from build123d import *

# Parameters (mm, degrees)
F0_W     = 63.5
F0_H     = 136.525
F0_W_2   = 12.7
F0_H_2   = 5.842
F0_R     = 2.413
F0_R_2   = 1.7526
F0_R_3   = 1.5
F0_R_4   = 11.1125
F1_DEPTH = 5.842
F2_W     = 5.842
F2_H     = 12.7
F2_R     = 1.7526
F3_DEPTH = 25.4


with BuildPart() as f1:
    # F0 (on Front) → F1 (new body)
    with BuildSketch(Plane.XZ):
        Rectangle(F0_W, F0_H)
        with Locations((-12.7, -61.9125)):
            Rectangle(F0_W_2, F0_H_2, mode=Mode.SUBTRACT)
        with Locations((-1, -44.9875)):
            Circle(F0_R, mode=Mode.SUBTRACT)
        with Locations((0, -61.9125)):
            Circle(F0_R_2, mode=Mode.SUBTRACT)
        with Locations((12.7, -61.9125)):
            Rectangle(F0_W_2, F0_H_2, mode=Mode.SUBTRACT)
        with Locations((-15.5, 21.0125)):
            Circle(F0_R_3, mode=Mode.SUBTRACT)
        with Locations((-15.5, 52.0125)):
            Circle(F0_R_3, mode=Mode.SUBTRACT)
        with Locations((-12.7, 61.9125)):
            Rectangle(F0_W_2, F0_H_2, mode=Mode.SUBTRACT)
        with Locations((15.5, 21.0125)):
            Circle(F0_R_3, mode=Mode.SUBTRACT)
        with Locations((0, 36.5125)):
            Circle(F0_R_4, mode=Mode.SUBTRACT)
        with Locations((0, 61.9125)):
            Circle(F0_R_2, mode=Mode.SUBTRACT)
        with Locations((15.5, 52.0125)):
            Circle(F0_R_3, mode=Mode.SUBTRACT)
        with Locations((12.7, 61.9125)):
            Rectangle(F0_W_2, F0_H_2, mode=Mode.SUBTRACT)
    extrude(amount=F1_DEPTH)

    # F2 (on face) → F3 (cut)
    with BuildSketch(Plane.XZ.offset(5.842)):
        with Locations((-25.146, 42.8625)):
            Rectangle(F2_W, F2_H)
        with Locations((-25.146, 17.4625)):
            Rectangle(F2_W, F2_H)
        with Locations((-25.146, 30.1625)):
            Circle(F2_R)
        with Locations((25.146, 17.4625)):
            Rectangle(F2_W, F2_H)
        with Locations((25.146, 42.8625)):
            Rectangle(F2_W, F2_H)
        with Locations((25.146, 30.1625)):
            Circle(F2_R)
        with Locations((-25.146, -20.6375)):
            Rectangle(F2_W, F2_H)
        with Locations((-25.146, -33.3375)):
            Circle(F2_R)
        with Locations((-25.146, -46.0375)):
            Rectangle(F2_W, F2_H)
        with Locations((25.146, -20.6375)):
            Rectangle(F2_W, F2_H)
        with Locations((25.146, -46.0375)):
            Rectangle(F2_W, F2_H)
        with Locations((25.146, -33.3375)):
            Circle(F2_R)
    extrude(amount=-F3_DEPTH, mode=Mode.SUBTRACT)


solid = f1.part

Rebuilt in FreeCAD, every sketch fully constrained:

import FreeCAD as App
import Part
import Sketcher

V = App.Vector
Q = App.Units.Quantity

doc = App.newDocument("Part")
body = doc.addObject("PartDesign::Body", "Body")

# Sketch on XZ plane
sketch1 = body.newObject("Sketcher::SketchObject", "Sketch")
sketch1.AttachmentSupport = (doc.getObject("XZ_Plane"), [""])
sketch1.MapMode = "FlatFace"
sketch1.addGeometry([
    Part.LineSegment(V(-31.8, 68.3, 0), V(-31.8, -68.3, 0)),  # 0
    Part.LineSegment(V(-31.8, -68.3, 0), V(31.8, -68.3, 0)),  # 1
    Part.LineSegment(V(31.8, -68.3, 0), V(31.8, 68.3, 0)),  # 2
    Part.LineSegment(V(31.8, 68.3, 0), V(-31.8, 68.3, 0)),  # 3
    Part.LineSegment(V(-6.3, -64.8, 0), V(-19.1, -64.8, 0)),  # 4
    Part.LineSegment(V(-19.1, -64.8, 0), V(-19.1, -59, 0)),  # 5
    Part.LineSegment(V(-19.1, -59, 0), V(-6.3, -59, 0)),  # 6
    Part.LineSegment(V(-6.3, -59, 0), V(-6.3, -64.8, 0)),  # 7
    Part.Circle(V(-1, -45, 0), V(0, 0, 1), 2.4),  # 8
    Part.Circle(V(0, -61.9, 0), V(0, 0, 1), 1.8),  # 9
    Part.LineSegment(V(19.1, -64.8, 0), V(6.3, -64.8, 0)),  # 10
    Part.LineSegment(V(6.3, -64.8, 0), V(6.3, -59, 0)),  # 11
    Part.LineSegment(V(6.3, -59, 0), V(19.1, -59, 0)),  # 12
    Part.LineSegment(V(19.1, -59, 0), V(19.1, -64.8, 0)),  # 13
    Part.Circle(V(-15.5, 21, 0), V(0, 0, 1), 1.5),  # 14
    Part.Circle(V(-15.5, 52, 0), V(0, 0, 1), 1.5),  # 15
    Part.LineSegment(V(-6.3, 59, 0), V(-19.1, 59, 0)),  # 16
    Part.LineSegment(V(-19.1, 59, 0), V(-19.1, 64.8, 0)),  # 17
    Part.LineSegment(V(-19.1, 64.8, 0), V(-6.3, 64.8, 0)),  # 18
    Part.LineSegment(V(-6.3, 64.8, 0), V(-6.3, 59, 0)),  # 19
    Part.Circle(V(15.5, 21, 0), V(0, 0, 1), 1.5),  # 20
    Part.Circle(V(0, 36.5, 0), V(0, 0, 1), 11.1),  # 21
    Part.Circle(V(0, 61.9, 0), V(0, 0, 1), 1.8),  # 22
    Part.LineSegment(V(19.1, 59, 0), V(6.3, 59, 0)),  # 23
    Part.LineSegment(V(6.3, 59, 0), V(6.3, 64.8, 0)),  # 24
    Part.LineSegment(V(6.3, 64.8, 0), V(19.1, 64.8, 0)),  # 25
    Part.LineSegment(V(19.1, 64.8, 0), V(19.1, 59, 0)),  # 26
    Part.Circle(V(15.5, 52, 0), V(0, 0, 1), 1.5),  # 27
], False)
sketch1.addConstraint([
    Sketcher.Constraint("Coincident", 0, 2, 1, 1),
    Sketcher.Constraint("Coincident", 1, 2, 2, 1),
    Sketcher.Constraint("Coincident", 2, 2, 3, 1),
    Sketcher.Constraint("Coincident", 3, 2, 0, 1),
    Sketcher.Constraint("Coincident", 4, 2, 5, 1),
    Sketcher.Constraint("Coincident", 5, 2, 6, 1),
    Sketcher.Constraint("Coincident", 6, 2, 7, 1),
    Sketcher.Constraint("Coincident", 7, 2, 4, 1),
    Sketcher.Constraint("Coincident", 10, 2, 11, 1),
    Sketcher.Constraint("Coincident", 11, 2, 12, 1),
    Sketcher.Constraint("Coincident", 12, 2, 13, 1),
    Sketcher.Constraint("Coincident", 13, 2, 10, 1),
    Sketcher.Constraint("Coincident", 16, 2, 17, 1),
    Sketcher.Constraint("Coincident", 17, 2, 18, 1),
    Sketcher.Constraint("Coincident", 18, 2, 19, 1),
    Sketcher.Constraint("Coincident", 19, 2, 16, 1),
    Sketcher.Constraint("Coincident", 23, 2, 24, 1),
    Sketcher.Constraint("Coincident", 24, 2, 25, 1),
    Sketcher.Constraint("Coincident", 25, 2, 26, 1),
    Sketcher.Constraint("Coincident", 26, 2, 23, 1),
    Sketcher.Constraint("Vertical", 0),
    Sketcher.Constraint("Horizontal", 1),
    Sketcher.Constraint("Vertical", 2),
    Sketcher.Constraint("Horizontal", 3),
    Sketcher.Constraint("Horizontal", 4),
    Sketcher.Constraint("Vertical", 5),
    Sketcher.Constraint("Horizontal", 6),
    Sketcher.Constraint("Vertical", 7),
    Sketcher.Constraint("Horizontal", 10),
    Sketcher.Constraint("Vertical", 11),
    Sketcher.Constraint("Horizontal", 12),
    Sketcher.Constraint("Vertical", 13),
    Sketcher.Constraint("Horizontal", 16),
    Sketcher.Constraint("Vertical", 17),
    Sketcher.Constraint("Horizontal", 18),
    Sketcher.Constraint("Vertical", 19),
    Sketcher.Constraint("Horizontal", 23),
    Sketcher.Constraint("Vertical", 24),
    Sketcher.Constraint("Horizontal", 25),
    Sketcher.Constraint("Vertical", 26),
    Sketcher.Constraint("Equal", 14, 15),
    Sketcher.Constraint("Equal", 15, 20),
    Sketcher.Constraint("Equal", 9, 22),
    Sketcher.Constraint("Equal", 20, 27),
    Sketcher.Constraint("Symmetric", 9, 3, 22, 3, -1, 1),
    Sketcher.Constraint("Symmetric", 0, 2, 2, 2, -1, 1),
    Sketcher.Constraint("Symmetric", 12, 2, 16, 2, -1, 1),
    Sketcher.Constraint("Symmetric", 10, 2, 18, 2, -1, 1),
    Sketcher.Constraint("Symmetric", 6, 2, 23, 2, -1, 1),
    Sketcher.Constraint("Symmetric", 4, 2, 25, 2, -1, 1),
    Sketcher.Constraint("Symmetric", 14, 3, 20, 3, -2),
    Sketcher.Constraint("Symmetric", 15, 3, 27, 3, -2),
    Sketcher.Constraint("Symmetric", 7, 2, 10, 2, -2),
    Sketcher.Constraint("Symmetric", 5, 2, 12, 2, -2),
    Sketcher.Constraint("PointOnObject", 9, 3, -2),
    Sketcher.Constraint("PointOnObject", 21, 3, -2),
    Sketcher.Constraint("Vertical", 14, 3, 15, 3),
    Sketcher.Constraint("Diameter", 8, Q("0.19 in")),
    Sketcher.Constraint("Diameter", 9, Q("0.138 in")),
    Sketcher.Constraint("Diameter", 21, Q("0.875 in")),
    Sketcher.Constraint("DistanceX", 1, 1, 1, 2, Q("2.5 in")),
    Sketcher.Constraint("DistanceX", 4, 2, 4, 1, Q("0.5 in")),
    Sketcher.Constraint("DistanceY", 21, 3, 22, 3, Q("1 in")),
    Sketcher.Constraint("DistanceX", 4, 2, 1, 2, Q("2 in")),
    Sketcher.Constraint("DistanceY", 5, 1, 5, 2, Q("0.23 in")),
    Sketcher.Constraint("Diameter", 14, 3.0),
    Sketcher.Constraint("DistanceY", 0, 2, 0, 1, Q("5.375 in")),
    Sketcher.Constraint("DistanceY", 0, 2, 9, 3, Q("0.25 in")),
    Sketcher.Constraint("DistanceY", 0, 2, 4, 2, Q("0.135 in")),
    Sketcher.Constraint("DistanceX", 8, 3, -1, 1, 1.0),
    Sketcher.Constraint("DistanceY", 8, 3, -1, 1, 44.9875),
    Sketcher.Constraint("DistanceX", 14, 3, -1, 1, 15.5),
    Sketcher.Constraint("DistanceY", -1, 1, 14, 3, 21.0125),
    Sketcher.Constraint("DistanceY", -1, 1, 15, 3, 52.0125),
])
pad1 = body.newObject("PartDesign::Pad", "Pad")
pad1.Profile = sketch1
pad1.Length = Q("0.23 in")

# Sketch on XZ plane
sketch2 = body.newObject("Sketcher::SketchObject", "Sketch001")
sketch2.AttachmentSupport = (doc.getObject("XZ_Plane"), [""])
sketch2.MapMode = "FlatFace"
sketch2.AttachmentOffset = App.Placement(V(0, 0, 0.23 * 25.4), App.Rotation())
sketch2.addGeometry([
    Part.LineSegment(V(-28.1, 49.2, 0), V(-28.1, 36.5, 0)),  # 0
    Part.LineSegment(V(-28.1, 36.5, 0), V(-22.2, 36.5, 0)),  # 1
    Part.LineSegment(V(-22.2, 36.5, 0), V(-22.2, 49.2, 0)),  # 2
    Part.LineSegment(V(-22.2, 49.2, 0), V(-28.1, 49.2, 0)),  # 3
    Part.LineSegment(V(-28.1, 23.8, 0), V(-28.1, 11.1, 0)),  # 4
    Part.LineSegment(V(-28.1, 11.1, 0), V(-22.2, 11.1, 0)),  # 5
    Part.LineSegment(V(-22.2, 11.1, 0), V(-22.2, 23.8, 0)),  # 6
    Part.LineSegment(V(-22.2, 23.8, 0), V(-28.1, 23.8, 0)),  # 7
    Part.Circle(V(-25.1, 30.2, 0), V(0, 0, 1), 1.8),  # 8
    Part.LineSegment(V(22.2, 23.8, 0), V(22.2, 11.1, 0)),  # 9
    Part.LineSegment(V(22.2, 11.1, 0), V(28.1, 11.1, 0)),  # 10
    Part.LineSegment(V(28.1, 11.1, 0), V(28.1, 23.8, 0)),  # 11
    Part.LineSegment(V(28.1, 23.8, 0), V(22.2, 23.8, 0)),  # 12
    Part.LineSegment(V(22.2, 49.2, 0), V(22.2, 36.5, 0)),  # 13
    Part.LineSegment(V(22.2, 36.5, 0), V(28.1, 36.5, 0)),  # 14
    Part.LineSegment(V(28.1, 36.5, 0), V(28.1, 49.2, 0)),  # 15
    Part.LineSegment(V(28.1, 49.2, 0), V(22.2, 49.2, 0)),  # 16
    Part.Circle(V(25.1, 30.2, 0), V(0, 0, 1), 1.8),  # 17
    Part.LineSegment(V(-28.1, -14.3, 0), V(-28.1, -27, 0)),  # 18
    Part.LineSegment(V(-28.1, -27, 0), V(-22.2, -27, 0)),  # 19
    Part.LineSegment(V(-22.2, -27, 0), V(-22.2, -14.3, 0)),  # 20
    Part.LineSegment(V(-22.2, -14.3, 0), V(-28.1, -14.3, 0)),  # 21
    Part.Circle(V(-25.1, -33.3, 0), V(0, 0, 1), 1.8),  # 22
    Part.LineSegment(V(-28.1, -39.7, 0), V(-28.1, -52.4, 0)),  # 23
    Part.LineSegment(V(-28.1, -52.4, 0), V(-22.2, -52.4, 0)),  # 24
    Part.LineSegment(V(-22.2, -52.4, 0), V(-22.2, -39.7, 0)),  # 25
    Part.LineSegment(V(-22.2, -39.7, 0), V(-28.1, -39.7, 0)),  # 26
    Part.LineSegment(V(22.2, -14.3, 0), V(22.2, -27, 0)),  # 27
    Part.LineSegment(V(22.2, -27, 0), V(28.1, -27, 0)),  # 28
    Part.LineSegment(V(28.1, -27, 0), V(28.1, -14.3, 0)),  # 29
    Part.LineSegment(V(28.1, -14.3, 0), V(22.2, -14.3, 0)),  # 30
    Part.LineSegment(V(22.2, -39.7, 0), V(22.2, -52.4, 0)),  # 31
    Part.LineSegment(V(22.2, -52.4, 0), V(28.1, -52.4, 0)),  # 32
    Part.LineSegment(V(28.1, -52.4, 0), V(28.1, -39.7, 0)),  # 33
    Part.LineSegment(V(28.1, -39.7, 0), V(22.2, -39.7, 0)),  # 34
    Part.Circle(V(25.1, -33.3, 0), V(0, 0, 1), 1.8),  # 35
], False)
sketch2.addConstraint([
    Sketcher.Constraint("Coincident", 0, 2, 1, 1),
    Sketcher.Constraint("Coincident", 1, 2, 2, 1),
    Sketcher.Constraint("Coincident", 2, 2, 3, 1),
    Sketcher.Constraint("Coincident", 3, 2, 0, 1),
    Sketcher.Constraint("Coincident", 4, 2, 5, 1),
    Sketcher.Constraint("Coincident", 5, 2, 6, 1),
    Sketcher.Constraint("Coincident", 6, 2, 7, 1),
    Sketcher.Constraint("Coincident", 7, 2, 4, 1),
    Sketcher.Constraint("Coincident", 9, 2, 10, 1),
    Sketcher.Constraint("Coincident", 10, 2, 11, 1),
    Sketcher.Constraint("Coincident", 11, 2, 12, 1),
    Sketcher.Constraint("Coincident", 12, 2, 9, 1),
    Sketcher.Constraint("Coincident", 13, 2, 14, 1),
    Sketcher.Constraint("Coincident", 14, 2, 15, 1),
    Sketcher.Constraint("Coincident", 15, 2, 16, 1),
    Sketcher.Constraint("Coincident", 16, 2, 13, 1),
    Sketcher.Constraint("Coincident", 18, 2, 19, 1),
    Sketcher.Constraint("Coincident", 19, 2, 20, 1),
    Sketcher.Constraint("Coincident", 20, 2, 21, 1),
    Sketcher.Constraint("Coincident", 21, 2, 18, 1),
    Sketcher.Constraint("Coincident", 23, 2, 24, 1),
    Sketcher.Constraint("Coincident", 24, 2, 25, 1),
    Sketcher.Constraint("Coincident", 25, 2, 26, 1),
    Sketcher.Constraint("Coincident", 26, 2, 23, 1),
    Sketcher.Constraint("Coincident", 27, 2, 28, 1),
    Sketcher.Constraint("Coincident", 28, 2, 29, 1),
    Sketcher.Constraint("Coincident", 29, 2, 30, 1),
    Sketcher.Constraint("Coincident", 30, 2, 27, 1),
    Sketcher.Constraint("Coincident", 31, 2, 32, 1),
    Sketcher.Constraint("Coincident", 32, 2, 33, 1),
    Sketcher.Constraint("Coincident", 33, 2, 34, 1),
    Sketcher.Constraint("Coincident", 34, 2, 31, 1),
    Sketcher.Constraint("Vertical", 0),
    Sketcher.Constraint("Horizontal", 1),
    Sketcher.Constraint("Vertical", 2),
    Sketcher.Constraint("Horizontal", 3),
    Sketcher.Constraint("Vertical", 4),
    Sketcher.Constraint("Horizontal", 5),
    Sketcher.Constraint("Vertical", 6),
    Sketcher.Constraint("Horizontal", 7),
    Sketcher.Constraint("Vertical", 9),
    Sketcher.Constraint("Horizontal", 10),
    Sketcher.Constraint("Vertical", 11),
    Sketcher.Constraint("Horizontal", 12),
    Sketcher.Constraint("Vertical", 13),
    Sketcher.Constraint("Horizontal", 14),
    Sketcher.Constraint("Vertical", 15),
    Sketcher.Constraint("Horizontal", 16),
    Sketcher.Constraint("Vertical", 18),
    Sketcher.Constraint("Horizontal", 19),
    Sketcher.Constraint("Vertical", 20),
    Sketcher.Constraint("Horizontal", 21),
    Sketcher.Constraint("Vertical", 23),
    Sketcher.Constraint("Horizontal", 24),
    Sketcher.Constraint("Vertical", 25),
    Sketcher.Constraint("Horizontal", 26),
    Sketcher.Constraint("Vertical", 27),
    Sketcher.Constraint("Horizontal", 28),
    Sketcher.Constraint("Vertical", 29),
    Sketcher.Constraint("Horizontal", 30),
    Sketcher.Constraint("Vertical", 31),
    Sketcher.Constraint("Horizontal", 32),
    Sketcher.Constraint("Vertical", 33),
    Sketcher.Constraint("Horizontal", 34),
    Sketcher.Constraint("Equal", 8, 17),
    Sketcher.Constraint("Equal", 17, 22),
    Sketcher.Constraint("Equal", 22, 35),
    Sketcher.Constraint("Symmetric", 8, 3, 17, 3, -2),
    Sketcher.Constraint("Symmetric", 22, 3, 35, 3, -2),
    Sketcher.Constraint("Symmetric", 5, 2, 9, 2, -2),
    Sketcher.Constraint("Symmetric", 7, 2, 11, 2, -2),
    Sketcher.Constraint("Symmetric", 1, 2, 13, 2, -2),
    Sketcher.Constraint("Symmetric", 3, 2, 15, 2, -2),
    Sketcher.Constraint("Symmetric", 19, 2, 27, 2, -2),
    Sketcher.Constraint("Symmetric", 21, 2, 29, 2, -2),
    Sketcher.Constraint("Symmetric", 24, 2, 31, 2, -2),
    Sketcher.Constraint("Symmetric", 26, 2, 33, 2, -2),
    Sketcher.Constraint("Vertical", 8, 3, 22, 3),
    Sketcher.Constraint("Vertical", 3, 2, 4, 2),
    Sketcher.Constraint("Vertical", 2, 2, 5, 2),
    Sketcher.Constraint("Vertical", 7, 2, 18, 2),
    Sketcher.Constraint("Vertical", 6, 2, 19, 2),
    Sketcher.Constraint("Vertical", 21, 2, 23, 2),
    Sketcher.Constraint("Vertical", 20, 2, 24, 2),
    Sketcher.Constraint("Equal", 2, 4),
    Sketcher.Constraint("Equal", 15, 18),
    Sketcher.Constraint("Equal", 20, 23),
    Sketcher.Constraint("Diameter", 8, Q("0.138 in")),
    Sketcher.Constraint("DistanceY", 0, 2, 0, 1, Q("0.5 in")),
    Sketcher.Constraint("DistanceY", 4, 2, 0, 2, Q("1 in")),
    Sketcher.Constraint("DistanceY", 18, 2, 7, 2, Q("2 in")),
    Sketcher.Constraint("DistanceY", 23, 2, 18, 2, Q("1 in")),
    Sketcher.Constraint("DistanceX", 1, 1, 1, 2, Q("0.23 in")),
    Sketcher.Constraint("DistanceY", 22, 3, 8, 3, Q("2.5 in")),
    Sketcher.Constraint("DistanceX", 8, 3, -1, 1, Q("0.99 in")),
    Sketcher.Constraint("DistanceY", 8, 3, 0, 2, Q("0.25 in")),
    Sketcher.Constraint("DistanceX", 5, 2, 9, 2, Q("1.75 in")),
    Sketcher.Constraint("DistanceY", -1, 1, 8, 3, Q("1.1875 in")),
])
pocket1 = body.newObject("PartDesign::Pocket", "Pocket")
pocket1.Profile = sketch2
pocket1.Length = Q("1 in")

doc.recompute()
